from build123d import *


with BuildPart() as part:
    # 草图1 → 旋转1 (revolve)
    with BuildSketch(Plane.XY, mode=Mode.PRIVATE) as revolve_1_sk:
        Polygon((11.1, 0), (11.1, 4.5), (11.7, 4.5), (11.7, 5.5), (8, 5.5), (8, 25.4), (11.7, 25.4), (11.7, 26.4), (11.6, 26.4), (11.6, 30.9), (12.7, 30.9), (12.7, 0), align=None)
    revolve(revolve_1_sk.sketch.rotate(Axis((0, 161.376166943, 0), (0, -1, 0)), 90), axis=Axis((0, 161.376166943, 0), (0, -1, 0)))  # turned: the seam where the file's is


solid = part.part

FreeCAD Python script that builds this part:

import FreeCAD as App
import Part
import Sketcher
from FreeCAD import Vector
Q = App.Units.Quantity

doc = App.newDocument("Part")
body = doc.addObject("PartDesign::Body", "Body")

sketch1 = doc.addObject("Sketcher::SketchObject", "Sketch")
body.addObject(sketch1)
sketch1.AttachmentSupport = (doc.XY_Plane, [""])
sketch1.MapMode = "FlatFace"
sketch1.addGeometry(Part.LineSegment(Vector(11.1, 4.5, 0), Vector(11.1, 0, 0)), False)
sketch1.addGeometry(Part.LineSegment(Vector(11.1, 0, 0), Vector(12.7, 0, 0)), False)
sketch1.addGeometry(Part.LineSegment(Vector(12.7, 0, 0), Vector(12.7, 30.9, 0)), False)
sketch1.addGeometry(Part.LineSegment(Vector(12.7, 30.9, 0), Vector(11.6, 30.9, 0)), False)
sketch1.addGeometry(Part.LineSegment(Vector(11.6, 30.9, 0), Vector(11.6, 26.4, 0)), False)
sketch1.addGeometry(Part.LineSegment(Vector(11.6, 26.4, 0), Vector(11.7, 26.4, 0)), False)
sketch1.addGeometry(Part.LineSegment(Vector(11.7, 26.4, 0), Vector(11.7, 25.4, 0)), False)
sketch1.addGeometry(Part.LineSegment(Vector(11.7, 25.4, 0), Vector(8, 25.4, 0)), False)
sketch1.addGeometry(Part.LineSegment(Vector(8, 25.4, 0), Vector(8, 5.5, 0)), False)
sketch1.addGeometry(Part.LineSegment(Vector(8, 5.5, 0), Vector(11.7, 5.5, 0)), False)
sketch1.addGeometry(Part.LineSegment(Vector(11.7, 5.5, 0), Vector(11.7, 4.5, 0)), False)
sketch1.addGeometry(Part.LineSegment(Vector(11.7, 4.5, 0), Vector(11.1, 4.5, 0)), False)
sketch1.addConstraint(Sketcher.Constraint("Coincident", 0, 2, 1, 1))
sketch1.addConstraint(Sketcher.Constraint("Coincident", 1, 2, 2, 1))
sketch1.addConstraint(Sketcher.Constraint("Coincident", 2, 2, 3, 1))
sketch1.addConstraint(Sketcher.Constraint("Coincident", 3, 2, 4, 1))
sketch1.addConstraint(Sketcher.Constraint("Coincident", 4, 2, 5, 1))
sketch1.addConstraint(Sketcher.Constraint("Coincident", 5, 2, 6, 1))
sketch1.addConstraint(Sketcher.Constraint("Coincident", 6, 2, 7, 1))
sketch1.addConstraint(Sketcher.Constraint("Coincident", 7, 2, 8, 1))
sketch1.addConstraint(Sketcher.Constraint("Coincident", 8, 2, 9, 1))
sketch1.addConstraint(Sketcher.Constraint("Coincident", 9, 2, 10, 1))
sketch1.addConstraint(Sketcher.Constraint("Coincident", 10, 2, 11, 1))
sketch1.addConstraint(Sketcher.Constraint("Coincident", 11, 2, 0, 1))
sketch1.addConstraint(Sketcher.Constraint("Vertical", 0))
sketch1.addConstraint(Sketcher.Constraint("Horizontal", 1))
sketch1.addConstraint(Sketcher.Constraint("Vertical", 2))
sketch1.addConstraint(Sketcher.Constraint("Horizontal", 3))
sketch1.addConstraint(Sketcher.Constraint("Vertical", 4))
sketch1.addConstraint(Sketcher.Constraint("Horizontal", 5))
sketch1.addConstraint(Sketcher.Constraint("Vertical", 6))
sketch1.addConstraint(Sketcher.Constraint("Horizontal", 7))
sketch1.addConstraint(Sketcher.Constraint("Vertical", 8))
sketch1.addConstraint(Sketcher.Constraint("Horizontal", 9))
sketch1.addConstraint(Sketcher.Constraint("Vertical", 10))
sketch1.addConstraint(Sketcher.Constraint("Horizontal", 11))
sketch1.addConstraint(Sketcher.Constraint("PointOnObject", 0, 2, -1))
sketch1.addConstraint(Sketcher.Constraint("Vertical", 6, 2, 9, 2))
sketch1.addConstraint(Sketcher.Constraint("Equal", 0, 4))
sketch1.addConstraint(Sketcher.Constraint("Equal", 6, 10))
sketch1.addConstraint(Sketcher.Constraint("DistanceY", 6, 2, 6, 1, Q("1 mm")))
sketch1.addConstraint(Sketcher.Constraint("DistanceX", 1, 1, 1, 2, Q("1.6 mm")))
sketch1.addConstraint(Sketcher.Constraint("DistanceX", 3, 2, 3, 1, Q("1.1 mm")))
sketch1.addConstraint(Sketcher.Constraint("DistanceX", 5, 1, 5, 2, Q("0.1 mm")))
sketch1.addConstraint(Sketcher.Constraint("DistanceX", 7, 2, 7, 1, Q("3.7 mm")))
sketch1.addConstraint(Sketcher.Constraint("DistanceY", 0, 2, 0, 1, Q("4.5 mm")))
sketch1.addConstraint(Sketcher.Constraint("DistanceY", 2, 1, 2, 2, Q("30.9 mm")))
sketch1.addConstraint(Sketcher.Constraint("DistanceX", -1, 1, 7, 2, Q("8 mm")))
revolution = doc.addObject("PartDesign::Revolution", "Revolution")
body.addObject(revolution)
revolution.Profile = sketch1
revolution.ReferenceAxis = (sketch1, ["V_Axis"])
revolution.Angle = 360

doc.recompute()
